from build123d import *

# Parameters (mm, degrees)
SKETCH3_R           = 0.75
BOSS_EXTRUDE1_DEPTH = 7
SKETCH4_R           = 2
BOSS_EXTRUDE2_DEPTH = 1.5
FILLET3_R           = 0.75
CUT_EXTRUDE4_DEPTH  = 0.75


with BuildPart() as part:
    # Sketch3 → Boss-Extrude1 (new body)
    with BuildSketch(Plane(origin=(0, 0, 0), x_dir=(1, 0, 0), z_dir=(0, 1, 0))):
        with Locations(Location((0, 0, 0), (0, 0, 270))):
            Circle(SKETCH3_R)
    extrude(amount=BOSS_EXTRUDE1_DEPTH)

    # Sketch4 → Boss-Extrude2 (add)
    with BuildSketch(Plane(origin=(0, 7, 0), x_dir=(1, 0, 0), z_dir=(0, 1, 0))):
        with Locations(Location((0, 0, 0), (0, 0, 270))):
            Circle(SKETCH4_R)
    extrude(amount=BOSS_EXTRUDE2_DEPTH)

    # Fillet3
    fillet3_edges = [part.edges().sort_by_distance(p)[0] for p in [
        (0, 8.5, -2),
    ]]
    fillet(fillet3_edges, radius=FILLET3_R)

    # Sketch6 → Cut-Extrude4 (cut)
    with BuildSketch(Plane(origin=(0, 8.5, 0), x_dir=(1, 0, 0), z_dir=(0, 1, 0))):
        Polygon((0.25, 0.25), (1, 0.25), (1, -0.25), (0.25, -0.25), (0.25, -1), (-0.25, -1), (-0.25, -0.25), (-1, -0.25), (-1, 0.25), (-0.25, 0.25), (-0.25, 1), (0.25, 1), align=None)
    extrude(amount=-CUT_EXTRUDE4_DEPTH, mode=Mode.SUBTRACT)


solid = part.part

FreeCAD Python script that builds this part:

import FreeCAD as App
import Part
import Sketcher

V = App.Vector


def edges_at(feature, points):
    """Names of the edges that pass closest to the given points."""
    edges = feature.Shape.Edges
    near = lambda p: min(range(len(edges)), key=lambda i: edges[i].distToShape(Part.Vertex(*p))[0])
    return sorted({f"Edge{near(p) + 1}" for p in points})

doc = App.newDocument("Part")
body = doc.addObject("PartDesign::Body", "Body")

sketch1 = body.newObject("Sketcher::SketchObject", "Sketch")
sketch1.AttachmentSupport = (doc.getObject("XZ_Plane"), [""])
sketch1.MapMode = "FlatFace"
sketch1.addGeometry(Part.Circle(V(0, 0, 0), V(0, 0, 1), 0.75), False)
sketch1.addConstraint([
    Sketcher.Constraint("Coincident", 0, 3, -1, 1),
    Sketcher.Constraint("Diameter", 0, 1.5),
])
pad1 = body.newObject("PartDesign::Pad", "Pad")
pad1.Profile = sketch1
pad1.Length = 7
pad1.Reversed = True

sketch2 = body.newObject("Sketcher::SketchObject", "Sketch001")
sketch2.AttachmentSupport = (doc.getObject("XZ_Plane"), [""])
sketch2.MapMode = "FlatFace"
sketch2.AttachmentOffset = App.Placement(V(0, 0, -7), App.Rotation())
sketch2.addGeometry(Part.Circle(V(0, 0, 0), V(0, 0, 1), 2), False)
sketch2.addConstraint([
    Sketcher.Constraint("Coincident", 0, 3, -1, 1),
    Sketcher.Constraint("Diameter", 0, 4.0),
])
pad2 = body.newObject("PartDesign::Pad", "Pad001")
pad2.Profile = sketch2
pad2.Length = 1.5
pad2.Reversed = True
doc.recompute()

fillet = body.newObject("PartDesign::Fillet", "Fillet")
fillet.Base = (pad2, edges_at(pad2, [(0, 8.5, -2)]))
fillet.Radius = 0.75

sketch3 = body.newObject("Sketcher::SketchObject", "Sketch002")
sketch3.AttachmentSupport = (doc.getObject("XZ_Plane"), [""])
sketch3.MapMode = "FlatFace"
sketch3.AttachmentOffset = App.Placement(V(0, 0, -8.5), App.Rotation())
sketch3.addGeometry([
    Part.LineSegment(V(1, -0.25, 0), V(0.25, -0.25, 0)),
    Part.LineSegment(V(0.25, -0.25, 0), V(0.25, -1, 0)),
    Part.LineSegment(V(0.25, -1, 0), V(-0.25, -1, 0)),
    Part.LineSegment(V(-0.25, -1, 0), V(-0.25, -0.25, 0)),
    Part.LineSegment(V(-0.25, -0.25, 0), V(-1, -0.25, 0)),
    Part.LineSegment(V(-1, -0.25, 0), V(-1, 0.25, 0)),
    Part.LineSegment(V(-1, 0.25, 0), V(-0.25, 0.25, 0)),
    Part.LineSegment(V(-0.25, 0.25, 0), V(-0.25, 1, 0)),
    Part.LineSegment(V(-0.25, 1, 0), V(0.25, 1, 0)),
    Part.LineSegment(V(0.25, 1, 0), V(0.25, 0.25, 0)),
    Part.LineSegment(V(0.25, 0.25, 0), V(1, 0.25, 0)),
    Part.LineSegment(V(1, 0.25, 0), V(1, -0.25, 0)),
], False)
sketch3.addConstraint([
    Sketcher.Constraint("Coincident", 0, 2, 1, 1),
    Sketcher.Constraint("Coincident", 1, 2, 2, 1),
    Sketcher.Constraint("Coincident", 2, 2, 3, 1),
    Sketcher.Constraint("Coincident", 3, 2, 4, 1),
    Sketcher.Constraint("Coincident", 4, 2, 5, 1),
    Sketcher.Constraint("Coincident", 5, 2, 6, 1),
    Sketcher.Constraint("Coincident", 6, 2, 7, 1),
    Sketcher.Constraint("Coincident", 7, 2, 8, 1),
    Sketcher.Constraint("Coincident", 8, 2, 9, 1),
    Sketcher.Constraint("Coincident", 9, 2, 10, 1),
    Sketcher.Constraint("Coincident", 10, 2, 11, 1),
    Sketcher.Constraint("Coincident", 11, 2, 0, 1),
    Sketcher.Constraint("Horizontal", 0),
    Sketcher.Constraint("Vertical", 1),
    Sketcher.Constraint("Horizontal", 2),
    Sketcher.Constraint("Vertical", 3),
    Sketcher.Constraint("Horizontal", 4),
    Sketcher.Constraint("Vertical", 5),
    Sketcher.Constraint("Horizontal", 6),
    Sketcher.Constraint("Vertical", 7),
    Sketcher.Constraint("Horizontal", 8),
    Sketcher.Constraint("Vertical", 9),
    Sketcher.Constraint("Horizontal", 10),
    Sketcher.Constraint("Vertical", 11),
    Sketcher.Constraint("Symmetric", 0, 2, 6, 2, -1, 1),
    Sketcher.Constraint("Symmetric", 2, 2, 8, 2, -1, 1),
    Sketcher.Constraint("Symmetric", 4, 2, 10, 2, -1, 1),
    Sketcher.Constraint("Symmetric", 0, 2, 3, 2, -2),
    Sketcher.Constraint("Equal", 10, 1),
    Sketcher.Constraint("Equal", 8, 5),
    Sketcher.Constraint("DistanceX", 2, 2, 2, 1, 0.5),
    Sketcher.Constraint("DistanceY", 1, 2, -1, 1, 1.0),
])
pocket1 = body.newObject("PartDesign::Pocket", "Pocket")
pocket1.Profile = sketch3
pocket1.Length = 0.75
pocket1.Reversed = True

doc.recompute()
